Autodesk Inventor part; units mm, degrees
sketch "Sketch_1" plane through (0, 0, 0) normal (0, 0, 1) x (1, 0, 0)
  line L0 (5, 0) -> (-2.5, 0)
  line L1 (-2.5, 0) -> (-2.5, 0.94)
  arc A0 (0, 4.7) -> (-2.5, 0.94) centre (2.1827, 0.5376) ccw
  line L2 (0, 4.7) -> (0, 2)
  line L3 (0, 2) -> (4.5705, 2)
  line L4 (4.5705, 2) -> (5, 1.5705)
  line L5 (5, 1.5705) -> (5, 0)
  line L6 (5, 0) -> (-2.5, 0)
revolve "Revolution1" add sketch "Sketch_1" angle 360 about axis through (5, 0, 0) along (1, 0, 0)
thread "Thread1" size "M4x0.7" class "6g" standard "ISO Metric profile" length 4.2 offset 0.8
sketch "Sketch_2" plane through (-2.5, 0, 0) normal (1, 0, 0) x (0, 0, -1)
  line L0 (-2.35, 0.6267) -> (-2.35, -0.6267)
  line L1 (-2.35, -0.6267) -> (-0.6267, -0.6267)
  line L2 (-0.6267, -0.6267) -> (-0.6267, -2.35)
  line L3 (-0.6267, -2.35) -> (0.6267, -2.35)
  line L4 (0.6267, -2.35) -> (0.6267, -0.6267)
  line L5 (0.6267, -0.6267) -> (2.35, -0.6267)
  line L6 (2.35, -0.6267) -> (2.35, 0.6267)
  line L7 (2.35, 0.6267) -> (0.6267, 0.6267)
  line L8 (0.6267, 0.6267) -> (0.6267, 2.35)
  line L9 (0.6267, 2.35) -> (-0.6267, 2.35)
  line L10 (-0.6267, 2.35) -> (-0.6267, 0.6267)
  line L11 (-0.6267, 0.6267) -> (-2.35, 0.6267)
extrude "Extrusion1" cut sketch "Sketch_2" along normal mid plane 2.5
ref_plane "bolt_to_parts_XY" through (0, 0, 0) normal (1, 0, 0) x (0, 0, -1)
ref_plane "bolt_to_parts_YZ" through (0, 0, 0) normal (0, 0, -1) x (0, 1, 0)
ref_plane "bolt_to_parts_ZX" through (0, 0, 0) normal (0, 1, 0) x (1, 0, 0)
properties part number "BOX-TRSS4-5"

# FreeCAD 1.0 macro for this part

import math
import FreeCAD as App
import Part
import Sketcher
Q = App.Units.Quantity


def add_polygon(sketch, points):
    """Adds a closed chain of lines whose ends are joined by coincident constraints."""
    first, n = sketch.GeometryCount, len(points)
    for a, b in zip(points, points[1:] + points[:1]):
        sketch.addGeometry(Part.LineSegment(App.Vector(*a, 0), App.Vector(*b, 0)), False)
    for i in range(n):
        sketch.addConstraint(Sketcher.Constraint("Coincident", first + i, 2, first + (i + 1) % n, 1))

doc = App.newDocument("Part")
body = doc.addObject("PartDesign::Body", "Body")

sketch1 = body.newObject("Sketcher::SketchObject", "Sketch")
sketch1.AttachmentSupport = (doc.getObject("XY_Plane"), [""])
sketch1.MapMode = "FlatFace"
sketch1.addGeometry([
    Part.LineSegment(App.Vector(-2.5, 0, 0), App.Vector(5, 0, 0)),
    Part.LineSegment(App.Vector(5, 0, 0), App.Vector(5, 1.5705, 0)),
    Part.LineSegment(App.Vector(5, 1.5705, 0), App.Vector(4.5705, 2, 0)),
    Part.LineSegment(App.Vector(4.5705, 2, 0), App.Vector(0, 2, 0)),
    Part.LineSegment(App.Vector(0, 2, 0), App.Vector(0, 4.7, 0)),
    Part.ArcOfCircle(Part.Circle(App.Vector(2.1827, 0.5376, 0), App.Vector(0, 0, 1), 4.699974), math.radians(117.671841), math.radians(175.088449)),
    Part.LineSegment(App.Vector(-2.5, 0.94, 0), App.Vector(-2.5, 0, 0)),
], False)
sketch1.addConstraint([
    Sketcher.Constraint("Coincident", 0, 2, 1, 1),
    Sketcher.Constraint("Coincident", 1, 2, 2, 1),
    Sketcher.Constraint("Coincident", 2, 2, 3, 1),
    Sketcher.Constraint("Coincident", 3, 2, 4, 1),
    Sketcher.Constraint("Coincident", 4, 2, 5, 1),
    Sketcher.Constraint("Coincident", 5, 2, 6, 1),
    Sketcher.Constraint("Coincident", 6, 2, 0, 1),
    Sketcher.Constraint("Horizontal", 0),
    Sketcher.Constraint("Vertical", 1),
    Sketcher.Constraint("Horizontal", 3),
    Sketcher.Constraint("Vertical", 4),
    Sketcher.Constraint("Vertical", 6),
    Sketcher.Constraint("PointOnObject", 0, 2, -1),
    Sketcher.Constraint("PointOnObject", 3, 2, -2),
    Sketcher.Constraint("Radius", 5, 4.7),
    Sketcher.Constraint("Angle", 2, Q("135 deg")),
    Sketcher.Constraint("DistanceX", 0, 1, 0, 2, 7.5),
    Sketcher.Constraint("DistanceY", 4, 1, 4, 2, 2.7),
    Sketcher.Constraint("DistanceX", -1, 1, 0, 2, 5.0),
    Sketcher.Constraint("DistanceY", -1, 1, 2, 2, 2.0),
    Sketcher.Constraint("DistanceY", 6, 2, 6, 1, 0.94),
    Sketcher.Constraint("DistanceX", 3, 2, 3, 1, 4.5705),
])
revolution = body.newObject("PartDesign::Revolution", "Revolution")
revolution.Profile = sketch1
revolution.ReferenceAxis = (sketch1, ["H_Axis"])
revolution.Angle = 360

sketch2 = body.newObject("Sketcher::SketchObject", "Sketch001")
sketch2.AttachmentSupport = (doc.getObject("YZ_Plane"), [""])
sketch2.MapMode = "FlatFace"
sketch2.AttachmentOffset = App.Placement(App.Vector(0, 0, -2.5), App.Rotation())
add_polygon(sketch2, [(0.6267, 0.6267), (0.6267, 2.35), (-0.6267, 2.35), (-0.6267, 0.6267), (-2.35, 0.6267), (-2.35, -0.6267), (-0.6267, -0.6267), (-0.6267, -2.35), (0.6267, -2.35), (0.6267, -0.6267), (2.35, -0.6267), (2.35, 0.6267)])
sketch2.addConstraint([
    Sketcher.Constraint("Vertical", 0),
    Sketcher.Constraint("Horizontal", 1),
    Sketcher.Constraint("Vertical", 2),
    Sketcher.Constraint("Horizontal", 3),
    Sketcher.Constraint("Vertical", 4),
    Sketcher.Constraint("Horizontal", 5),
    Sketcher.Constraint("Vertical", 6),
    Sketcher.Constraint("Horizontal", 7),
    Sketcher.Constraint("Vertical", 8),
    Sketcher.Constraint("Horizontal", 9),
    Sketcher.Constraint("Vertical", 10),
    Sketcher.Constraint("Horizontal", 11),
    Sketcher.Constraint("Symmetric", 0, 2, 6, 2, -1, 1),
    Sketcher.Constraint("Symmetric", 2, 2, 8, 2, -1, 1),
    Sketcher.Constraint("Symmetric", 4, 2, 10, 2, -1, 1),
    Sketcher.Constraint("Symmetric", 5, 2, 8, 2, -2),
    Sketcher.Constraint("Equal", 11, 0),
    Sketcher.Constraint("Equal", 7, 4),
    Sketcher.Constraint("DistanceY", 6, 2, 1, 2, 4.7),
    Sketcher.Constraint("DistanceX", 1, 2, 1, 1, 1.2534),
])
pocket1 = body.newObject("PartDesign::Pocket", "Pocket")
pocket1.Profile = sketch2
pocket1.Length = 2.5
pocket1.Midplane = True

doc.recompute()
